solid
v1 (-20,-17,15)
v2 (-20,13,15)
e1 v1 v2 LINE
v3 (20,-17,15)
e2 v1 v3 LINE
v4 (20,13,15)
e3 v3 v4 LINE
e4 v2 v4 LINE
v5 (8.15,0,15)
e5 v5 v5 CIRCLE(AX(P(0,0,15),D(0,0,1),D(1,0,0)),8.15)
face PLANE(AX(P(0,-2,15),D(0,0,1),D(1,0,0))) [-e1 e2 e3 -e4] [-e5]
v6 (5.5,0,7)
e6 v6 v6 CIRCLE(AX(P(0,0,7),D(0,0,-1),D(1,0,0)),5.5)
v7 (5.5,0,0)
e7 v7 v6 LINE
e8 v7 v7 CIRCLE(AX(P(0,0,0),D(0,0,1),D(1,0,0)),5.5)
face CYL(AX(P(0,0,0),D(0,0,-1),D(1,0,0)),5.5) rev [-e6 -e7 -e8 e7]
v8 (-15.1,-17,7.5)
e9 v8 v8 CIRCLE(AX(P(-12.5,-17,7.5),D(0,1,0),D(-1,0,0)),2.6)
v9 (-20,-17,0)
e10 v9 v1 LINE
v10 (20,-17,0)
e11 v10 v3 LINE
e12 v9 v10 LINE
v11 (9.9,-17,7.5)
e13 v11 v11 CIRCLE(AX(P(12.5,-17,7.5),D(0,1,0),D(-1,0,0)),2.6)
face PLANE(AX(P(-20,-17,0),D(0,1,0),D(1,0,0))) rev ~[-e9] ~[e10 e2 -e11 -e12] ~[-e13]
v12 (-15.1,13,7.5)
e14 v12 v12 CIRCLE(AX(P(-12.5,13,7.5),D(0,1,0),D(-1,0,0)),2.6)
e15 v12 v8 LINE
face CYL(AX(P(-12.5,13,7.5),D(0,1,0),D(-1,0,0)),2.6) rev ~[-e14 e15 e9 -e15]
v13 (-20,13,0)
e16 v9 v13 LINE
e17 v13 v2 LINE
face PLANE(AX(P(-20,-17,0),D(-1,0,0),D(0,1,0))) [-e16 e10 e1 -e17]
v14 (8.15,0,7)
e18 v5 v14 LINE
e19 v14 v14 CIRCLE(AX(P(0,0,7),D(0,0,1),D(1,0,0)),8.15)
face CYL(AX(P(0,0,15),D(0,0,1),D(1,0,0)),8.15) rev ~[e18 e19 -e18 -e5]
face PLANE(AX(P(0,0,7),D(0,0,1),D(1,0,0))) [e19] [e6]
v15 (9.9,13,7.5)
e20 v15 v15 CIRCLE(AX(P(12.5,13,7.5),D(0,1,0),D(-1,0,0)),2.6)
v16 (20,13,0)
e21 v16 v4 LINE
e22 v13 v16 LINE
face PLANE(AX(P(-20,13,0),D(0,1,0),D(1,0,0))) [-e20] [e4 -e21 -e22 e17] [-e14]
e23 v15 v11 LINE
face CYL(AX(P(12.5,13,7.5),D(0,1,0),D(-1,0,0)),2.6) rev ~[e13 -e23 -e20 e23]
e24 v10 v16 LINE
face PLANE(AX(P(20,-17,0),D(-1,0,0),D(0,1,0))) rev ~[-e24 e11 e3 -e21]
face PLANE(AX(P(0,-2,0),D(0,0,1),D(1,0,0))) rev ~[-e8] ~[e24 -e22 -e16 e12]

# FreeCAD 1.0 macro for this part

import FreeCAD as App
import Part
import Sketcher

V = App.Vector
Q = App.Units.Quantity


def add_polygon(sketch, points):
    """Adds a closed chain of lines whose ends are joined by coincident constraints."""
    first, n = sketch.GeometryCount, len(points)
    for a, b in zip(points, points[1:] + points[:1]):
        sketch.addGeometry(Part.LineSegment(App.Vector(*a, 0), App.Vector(*b, 0)), False)
    for i in range(n):
        sketch.addConstraint(Sketcher.Constraint("Coincident", first + i, 2, first + (i + 1) % n, 1))

doc = App.newDocument("Part")
body = doc.addObject("PartDesign::Body", "Body")

sketch1 = body.newObject("Sketcher::SketchObject", "Sketch")
sketch1.AttachmentSupport = (doc.getObject("XY_Plane"), [""])
sketch1.MapMode = "FlatFace"
add_polygon(sketch1, [(-20, 13), (-20, -17), (20, -17), (20, 13)])
sketch1.addGeometry(Part.Circle(V(0, 0, 0), V(0, 0, 1), 6), False)
sketch1.addConstraint([
    Sketcher.Constraint("Vertical", 0),
    Sketcher.Constraint("Horizontal", 1),
    Sketcher.Constraint("Vertical", 2),
    Sketcher.Constraint("Horizontal", 3),
    Sketcher.Constraint("Coincident", 4, 3, -1, 1),
    Sketcher.Constraint("Diameter", 4, Q("11 mm")),
    Sketcher.Constraint("DistanceX", 1, 1, 1, 2, Q("40 mm")),
    Sketcher.Constraint("DistanceY", 0, 2, 0, 1, Q("30 mm")),
    Sketcher.Constraint("DistanceX", 0, 2, -1, 1, Q("20 mm")),
    Sketcher.Constraint("DistanceY", 0, 2, -1, 1, Q("17 mm")),
])
pad1 = body.newObject("PartDesign::Pad", "Pad")
pad1.Profile = sketch1
pad1.Length = 15

sketch2 = body.newObject("Sketcher::SketchObject", "Sketch001")
sketch2.AttachmentSupport = (doc.getObject("XY_Plane"), [""])
sketch2.MapMode = "FlatFace"
sketch2.AttachmentOffset = App.Placement(V(0, 0, 15), App.Rotation())
sketch2.addGeometry(Part.Circle(V(0, 0, 0), V(0, 0, 1), 8), False)
sketch2.addConstraint([
    Sketcher.Constraint("Coincident", 0, 3, -1, 1),
    Sketcher.Constraint("Diameter", 0, Q("16.3 mm")),
])
pocket1 = body.newObject("PartDesign::Pocket", "Pocket")
pocket1.Profile = sketch2
pocket1.Length = 8

sketch3 = body.newObject("Sketcher::SketchObject", "Sketch002")
sketch3.AttachmentSupport = (doc.getObject("XZ_Plane"), [""])
sketch3.MapMode = "FlatFace"
sketch3.AttachmentOffset = App.Placement(V(0, 0, -13), App.Rotation())
sketch3.addGeometry([
    Part.Circle(V(12.5, 7.5, 0), V(0, 0, 1), 2.6),
    Part.Circle(V(-12.5, 7.5, 0), V(0, 0, 1), 2.6),
], False)
sketch3.addConstraint([
    Sketcher.Constraint("Equal", 0, 1),
    Sketcher.Constraint("Symmetric", 0, 3, 1, 3, -2),
    Sketcher.Constraint("Diameter", 0, Q("5.2 mm")),
    Sketcher.Constraint("DistanceX", 1, 3, 0, 3, Q("25 mm")),
    Sketcher.Constraint("DistanceY", -1, 1, 0, 3, Q("7.5 mm")),
])
pocket2 = body.newObject("PartDesign::Pocket", "Pocket001")
pocket2.Profile = sketch3
pocket2.Type = "ThroughAll"
pocket2.Reversed = True

doc.recompute()
